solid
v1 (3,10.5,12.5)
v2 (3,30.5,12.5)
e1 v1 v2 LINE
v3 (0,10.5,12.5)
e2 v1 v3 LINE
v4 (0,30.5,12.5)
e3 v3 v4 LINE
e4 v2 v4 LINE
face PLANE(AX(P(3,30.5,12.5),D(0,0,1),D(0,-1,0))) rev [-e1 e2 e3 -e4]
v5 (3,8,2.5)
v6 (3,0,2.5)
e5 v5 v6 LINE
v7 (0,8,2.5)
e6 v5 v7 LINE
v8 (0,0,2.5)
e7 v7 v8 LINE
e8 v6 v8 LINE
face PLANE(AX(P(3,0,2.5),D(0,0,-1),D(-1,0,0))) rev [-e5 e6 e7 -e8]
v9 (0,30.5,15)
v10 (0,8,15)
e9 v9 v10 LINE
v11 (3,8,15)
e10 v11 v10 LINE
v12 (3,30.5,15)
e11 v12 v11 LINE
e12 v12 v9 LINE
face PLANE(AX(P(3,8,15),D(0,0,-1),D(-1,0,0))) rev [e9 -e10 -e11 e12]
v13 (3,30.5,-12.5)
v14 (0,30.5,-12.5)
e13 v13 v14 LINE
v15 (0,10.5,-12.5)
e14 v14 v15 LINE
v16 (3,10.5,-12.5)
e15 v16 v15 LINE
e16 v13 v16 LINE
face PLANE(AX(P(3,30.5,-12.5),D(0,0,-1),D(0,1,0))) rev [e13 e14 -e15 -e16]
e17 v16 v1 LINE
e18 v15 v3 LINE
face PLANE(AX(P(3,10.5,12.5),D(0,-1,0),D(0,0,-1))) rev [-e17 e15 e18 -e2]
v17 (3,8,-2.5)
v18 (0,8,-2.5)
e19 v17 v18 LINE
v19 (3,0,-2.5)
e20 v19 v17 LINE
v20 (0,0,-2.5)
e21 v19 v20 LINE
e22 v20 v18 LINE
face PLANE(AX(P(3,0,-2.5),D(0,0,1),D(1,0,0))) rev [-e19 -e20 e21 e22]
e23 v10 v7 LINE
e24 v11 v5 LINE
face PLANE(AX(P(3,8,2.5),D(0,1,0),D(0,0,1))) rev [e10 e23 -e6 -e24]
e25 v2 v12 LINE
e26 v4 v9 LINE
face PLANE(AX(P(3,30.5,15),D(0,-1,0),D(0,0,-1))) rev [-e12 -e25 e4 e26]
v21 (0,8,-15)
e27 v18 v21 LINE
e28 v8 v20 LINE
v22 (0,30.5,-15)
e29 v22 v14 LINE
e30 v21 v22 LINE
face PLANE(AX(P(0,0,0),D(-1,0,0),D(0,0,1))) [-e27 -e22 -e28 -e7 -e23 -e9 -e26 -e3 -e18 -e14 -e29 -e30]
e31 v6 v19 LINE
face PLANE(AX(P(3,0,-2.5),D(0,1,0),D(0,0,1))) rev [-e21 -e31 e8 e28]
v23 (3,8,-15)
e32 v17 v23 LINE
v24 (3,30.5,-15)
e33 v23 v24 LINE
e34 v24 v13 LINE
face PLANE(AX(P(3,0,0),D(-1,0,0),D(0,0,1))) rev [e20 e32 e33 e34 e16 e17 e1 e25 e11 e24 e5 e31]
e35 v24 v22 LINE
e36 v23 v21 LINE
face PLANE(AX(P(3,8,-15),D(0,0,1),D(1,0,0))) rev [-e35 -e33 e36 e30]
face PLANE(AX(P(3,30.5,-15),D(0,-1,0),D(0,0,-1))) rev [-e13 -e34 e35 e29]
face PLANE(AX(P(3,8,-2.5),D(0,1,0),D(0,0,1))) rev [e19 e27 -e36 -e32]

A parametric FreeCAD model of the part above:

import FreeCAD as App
import Part
import Sketcher
from FreeCAD import Vector
Q = App.Units.Quantity

doc = App.newDocument("Part")
body = doc.addObject("PartDesign::Body", "Body")

sketch1 = body.newObject("Sketcher::SketchObject", "Sketch")
sketch1.AttachmentSupport = (doc.getObject("YZ_Plane"), [""])
sketch1.MapMode = "FlatFace"
sketch1.addGeometry([
    Part.LineSegment(Vector(0, 2.5, 0), Vector(0, -2.5, 0)),
    Part.LineSegment(Vector(0, -2.5, 0), Vector(8, -2.5, 0)),
    Part.LineSegment(Vector(8, -2.5, 0), Vector(8, -15, 0)),
    Part.LineSegment(Vector(8, -15, 0), Vector(30.5, -15, 0)),
    Part.LineSegment(Vector(30.5, -15, 0), Vector(30.5, -12.5, 0)),
    Part.LineSegment(Vector(30.5, -12.5, 0), Vector(10.5, -12.5, 0)),
    Part.LineSegment(Vector(10.5, -12.5, 0), Vector(10.5, 12.5, 0)),
    Part.LineSegment(Vector(10.5, 12.5, 0), Vector(30.5, 12.5, 0)),
    Part.LineSegment(Vector(30.5, 12.5, 0), Vector(30.5, 15, 0)),
    Part.LineSegment(Vector(30.5, 15, 0), Vector(8, 15, 0)),
    Part.LineSegment(Vector(8, 15, 0), Vector(8, 2.5, 0)),
    Part.LineSegment(Vector(8, 2.5, 0), Vector(0, 2.5, 0)),
], False)
sketch1.addConstraint([
    Sketcher.Constraint("Coincident", 0, 2, 1, 1),
    Sketcher.Constraint("Coincident", 1, 2, 2, 1),
    Sketcher.Constraint("Coincident", 2, 2, 3, 1),
    Sketcher.Constraint("Coincident", 3, 2, 4, 1),
    Sketcher.Constraint("Coincident", 4, 2, 5, 1),
    Sketcher.Constraint("Coincident", 5, 2, 6, 1),
    Sketcher.Constraint("Coincident", 6, 2, 7, 1),
    Sketcher.Constraint("Coincident", 7, 2, 8, 1),
    Sketcher.Constraint("Coincident", 8, 2, 9, 1),
    Sketcher.Constraint("Coincident", 9, 2, 10, 1),
    Sketcher.Constraint("Coincident", 10, 2, 11, 1),
    Sketcher.Constraint("Coincident", 11, 2, 0, 1),
    Sketcher.Constraint("Vertical", 0),
    Sketcher.Constraint("Horizontal", 1),
    Sketcher.Constraint("Vertical", 2),
    Sketcher.Constraint("Horizontal", 3),
    Sketcher.Constraint("Vertical", 4),
    Sketcher.Constraint("Horizontal", 5),
    Sketcher.Constraint("Vertical", 6),
    Sketcher.Constraint("Horizontal", 7),
    Sketcher.Constraint("Vertical", 8),
    Sketcher.Constraint("Horizontal", 9),
    Sketcher.Constraint("Vertical", 10),
    Sketcher.Constraint("Horizontal", 11),
    Sketcher.Constraint("Symmetric", 0, 2, 11, 2, -1, 1),
    Sketcher.Constraint("Symmetric", 4, 2, 7, 2, -1),
    Sketcher.Constraint("Symmetric", 2, 2, 9, 2, -1),
    Sketcher.Constraint("DistanceX", 1, 1, 1, 2, Q("8 mm")),
    Sketcher.Constraint("DistanceX", 5, 2, 5, 1, Q("20 mm")),
    Sketcher.Constraint("DistanceY", 0, 2, 0, 1, Q("5 mm")),
    Sketcher.Constraint("DistanceY", 6, 1, 6, 2, Q("25 mm")),
    Sketcher.Constraint("DistanceX", 3, 1, 3, 2, Q("22.5 mm")),
    Sketcher.Constraint("DistanceY", 2, 2, 2, 1, Q("12.5 mm")),
])
pad1 = body.newObject("PartDesign::Pad", "Pad")
pad1.Profile = sketch1
pad1.Length = 3

doc.recompute()
